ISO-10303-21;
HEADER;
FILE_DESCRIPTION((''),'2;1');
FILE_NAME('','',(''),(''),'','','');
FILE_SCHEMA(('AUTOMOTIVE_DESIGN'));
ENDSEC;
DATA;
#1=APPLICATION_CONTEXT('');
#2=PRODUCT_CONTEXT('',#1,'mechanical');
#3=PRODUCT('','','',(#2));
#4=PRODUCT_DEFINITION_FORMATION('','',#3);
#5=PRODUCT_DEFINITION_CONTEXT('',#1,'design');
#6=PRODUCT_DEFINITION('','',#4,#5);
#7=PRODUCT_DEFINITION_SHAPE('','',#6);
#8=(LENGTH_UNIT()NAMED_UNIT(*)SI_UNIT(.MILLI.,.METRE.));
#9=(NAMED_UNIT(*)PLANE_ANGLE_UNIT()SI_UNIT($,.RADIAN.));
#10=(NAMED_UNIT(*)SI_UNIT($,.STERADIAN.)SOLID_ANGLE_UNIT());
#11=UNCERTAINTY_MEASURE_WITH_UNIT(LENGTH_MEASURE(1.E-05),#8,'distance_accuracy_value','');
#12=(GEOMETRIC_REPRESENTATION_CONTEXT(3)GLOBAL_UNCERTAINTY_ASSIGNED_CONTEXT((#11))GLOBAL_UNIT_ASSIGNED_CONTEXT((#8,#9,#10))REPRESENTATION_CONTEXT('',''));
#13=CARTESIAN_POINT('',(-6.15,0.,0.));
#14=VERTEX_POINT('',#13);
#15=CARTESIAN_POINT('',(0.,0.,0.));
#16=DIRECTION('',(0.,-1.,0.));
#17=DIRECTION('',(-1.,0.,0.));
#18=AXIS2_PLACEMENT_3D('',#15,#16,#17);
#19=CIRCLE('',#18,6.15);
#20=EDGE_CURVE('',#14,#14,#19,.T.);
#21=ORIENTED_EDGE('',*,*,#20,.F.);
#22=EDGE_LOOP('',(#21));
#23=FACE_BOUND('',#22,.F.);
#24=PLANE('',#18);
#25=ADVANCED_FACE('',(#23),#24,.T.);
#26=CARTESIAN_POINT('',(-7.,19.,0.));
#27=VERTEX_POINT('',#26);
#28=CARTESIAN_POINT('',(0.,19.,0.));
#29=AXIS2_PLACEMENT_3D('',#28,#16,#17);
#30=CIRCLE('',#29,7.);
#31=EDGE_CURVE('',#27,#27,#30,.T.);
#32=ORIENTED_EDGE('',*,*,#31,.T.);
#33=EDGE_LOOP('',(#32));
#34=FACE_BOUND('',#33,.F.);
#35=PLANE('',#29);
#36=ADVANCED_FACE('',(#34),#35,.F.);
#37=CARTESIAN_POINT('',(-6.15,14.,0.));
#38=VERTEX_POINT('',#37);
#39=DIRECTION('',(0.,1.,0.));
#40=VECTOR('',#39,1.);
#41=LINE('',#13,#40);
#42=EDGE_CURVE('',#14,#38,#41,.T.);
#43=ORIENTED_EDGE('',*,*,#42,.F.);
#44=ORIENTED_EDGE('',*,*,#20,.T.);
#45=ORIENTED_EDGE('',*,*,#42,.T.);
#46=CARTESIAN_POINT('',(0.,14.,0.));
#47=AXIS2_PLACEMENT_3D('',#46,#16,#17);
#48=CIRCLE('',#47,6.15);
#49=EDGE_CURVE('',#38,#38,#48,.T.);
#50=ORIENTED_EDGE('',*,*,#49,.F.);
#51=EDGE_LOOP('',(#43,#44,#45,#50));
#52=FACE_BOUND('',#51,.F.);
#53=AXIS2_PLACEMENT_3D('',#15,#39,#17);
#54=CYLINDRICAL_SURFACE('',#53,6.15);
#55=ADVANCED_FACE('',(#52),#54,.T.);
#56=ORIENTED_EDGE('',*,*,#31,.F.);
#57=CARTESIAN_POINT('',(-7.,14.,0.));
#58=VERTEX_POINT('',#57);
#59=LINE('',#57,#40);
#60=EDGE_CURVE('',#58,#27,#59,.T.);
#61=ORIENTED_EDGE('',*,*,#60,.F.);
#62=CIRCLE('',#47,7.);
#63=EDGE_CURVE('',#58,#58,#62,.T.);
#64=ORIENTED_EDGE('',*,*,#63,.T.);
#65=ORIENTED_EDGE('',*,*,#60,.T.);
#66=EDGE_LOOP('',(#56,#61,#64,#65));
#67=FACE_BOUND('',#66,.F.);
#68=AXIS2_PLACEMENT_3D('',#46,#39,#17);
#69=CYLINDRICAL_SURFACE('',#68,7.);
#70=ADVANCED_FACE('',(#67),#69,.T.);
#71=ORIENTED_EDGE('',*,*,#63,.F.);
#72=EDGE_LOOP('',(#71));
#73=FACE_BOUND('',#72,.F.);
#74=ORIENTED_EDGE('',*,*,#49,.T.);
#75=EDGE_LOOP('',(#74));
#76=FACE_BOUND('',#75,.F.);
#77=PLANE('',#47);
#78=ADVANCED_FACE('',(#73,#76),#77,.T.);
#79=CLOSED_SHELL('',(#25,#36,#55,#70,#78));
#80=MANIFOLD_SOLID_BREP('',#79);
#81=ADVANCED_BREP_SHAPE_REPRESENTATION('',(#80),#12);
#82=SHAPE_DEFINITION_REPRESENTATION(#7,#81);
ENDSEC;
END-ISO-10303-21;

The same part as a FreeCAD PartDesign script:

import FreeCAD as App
import Part
import Sketcher

V = App.Vector
Q = App.Units.Quantity


def add_polygon(sketch, points):
    """Adds a closed chain of lines whose ends are joined by coincident constraints."""
    first, n = sketch.GeometryCount, len(points)
    for a, b in zip(points, points[1:] + points[:1]):
        sketch.addGeometry(Part.LineSegment(App.Vector(*a, 0), App.Vector(*b, 0)), False)
    for i in range(n):
        sketch.addConstraint(Sketcher.Constraint("Coincident", first + i, 2, first + (i + 1) % n, 1))

doc = App.newDocument("Part")
body = doc.addObject("PartDesign::Body", "Body")

# Sketch on XY plane
sketch1 = body.newObject("Sketcher::SketchObject", "Sketch")
sketch1.AttachmentSupport = (doc.getObject("XY_Plane"), [""])
sketch1.MapMode = "FlatFace"
add_polygon(sketch1, [(-6.2, 0), (0, 0), (0, 19), (-7, 19), (-7, 14), (-6.2, 14)])  # lines 0-5
sketch1.addConstraint([
    Sketcher.Constraint("Horizontal", 0),
    Sketcher.Constraint("Vertical", 1),
    Sketcher.Constraint("Horizontal", 2),
    Sketcher.Constraint("Vertical", 3),
    Sketcher.Constraint("Horizontal", 4),
    Sketcher.Constraint("Vertical", 5),
    Sketcher.Constraint("Coincident", 0, 2, -1, 1),
    Sketcher.Constraint("DistanceY", 3, 2, 3, 1, Q("5 mm")),
    Sketcher.Constraint("DistanceY", 5, 2, 5, 1, Q("14 mm")),
    Sketcher.Constraint("DistanceX", 2, 2, 2, 1, Q("7 mm")),
    Sketcher.Constraint("DistanceX", 0, 1, 0, 2, Q("6.15 mm")),
])
revolution = body.newObject("PartDesign::Revolution", "Revolution")
revolution.Profile = sketch1
revolution.ReferenceAxis = (sketch1, ["V_Axis"])
revolution.Angle = 360

doc.recompute()
